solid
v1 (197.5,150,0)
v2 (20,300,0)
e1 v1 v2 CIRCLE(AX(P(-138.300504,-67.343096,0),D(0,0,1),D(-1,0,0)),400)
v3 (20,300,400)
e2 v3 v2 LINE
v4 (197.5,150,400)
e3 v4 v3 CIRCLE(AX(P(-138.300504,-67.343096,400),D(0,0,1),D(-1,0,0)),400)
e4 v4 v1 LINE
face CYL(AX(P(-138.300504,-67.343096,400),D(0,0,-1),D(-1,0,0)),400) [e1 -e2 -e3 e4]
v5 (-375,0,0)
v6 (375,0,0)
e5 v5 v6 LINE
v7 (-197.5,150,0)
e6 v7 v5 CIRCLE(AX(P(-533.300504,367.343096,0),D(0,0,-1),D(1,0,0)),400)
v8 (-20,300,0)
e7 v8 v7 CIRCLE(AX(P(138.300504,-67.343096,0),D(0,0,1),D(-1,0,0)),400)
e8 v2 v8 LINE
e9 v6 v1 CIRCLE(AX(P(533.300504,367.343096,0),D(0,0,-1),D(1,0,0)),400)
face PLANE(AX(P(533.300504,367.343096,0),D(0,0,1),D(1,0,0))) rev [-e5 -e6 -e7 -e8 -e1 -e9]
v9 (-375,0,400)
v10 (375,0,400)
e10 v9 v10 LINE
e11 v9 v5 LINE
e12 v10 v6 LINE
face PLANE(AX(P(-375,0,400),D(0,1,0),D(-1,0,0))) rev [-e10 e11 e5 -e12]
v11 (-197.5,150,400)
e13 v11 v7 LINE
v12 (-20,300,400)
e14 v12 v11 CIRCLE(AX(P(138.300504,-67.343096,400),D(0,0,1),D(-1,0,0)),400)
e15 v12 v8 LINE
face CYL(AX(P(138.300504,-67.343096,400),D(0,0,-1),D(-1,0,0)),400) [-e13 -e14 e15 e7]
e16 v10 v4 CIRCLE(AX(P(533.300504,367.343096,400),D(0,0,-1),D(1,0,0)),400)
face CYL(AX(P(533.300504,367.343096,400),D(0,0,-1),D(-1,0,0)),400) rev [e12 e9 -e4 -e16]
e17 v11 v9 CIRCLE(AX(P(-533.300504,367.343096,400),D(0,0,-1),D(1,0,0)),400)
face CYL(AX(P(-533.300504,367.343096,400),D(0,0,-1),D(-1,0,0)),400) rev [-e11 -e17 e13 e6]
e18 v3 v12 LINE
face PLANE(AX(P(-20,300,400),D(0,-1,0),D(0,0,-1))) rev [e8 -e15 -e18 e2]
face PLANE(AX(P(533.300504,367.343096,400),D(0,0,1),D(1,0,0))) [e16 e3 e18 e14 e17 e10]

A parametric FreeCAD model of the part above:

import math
import FreeCAD as App
import Part
import Sketcher

V = App.Vector
Q = App.Units.Quantity

doc = App.newDocument("Part")
body = doc.addObject("PartDesign::Body", "Body")

# Sketch on XY plane
sketch1 = body.newObject("Sketcher::SketchObject", "Sketch")
sketch1.AttachmentSupport = (doc.getObject("XY_Plane"), [""])
sketch1.MapMode = "FlatFace"
sketch1.addGeometry(Part.LineSegment(V(-375, 0, 0), V(375, 0, 0)), False)
sketch1.addGeometry(Part.ArcOfCircle(Part.Circle(V(533, 367, 0), V(0, 0, 1), 400), math.radians(-147), math.radians(-113)), False)
sketch1.addGeometry(Part.ArcOfCircle(Part.Circle(V(-138, -67, 0), V(0, 0, 1), 400), math.radians(33), math.radians(67)), False)
sketch1.addGeometry(Part.LineSegment(V(20, 300, 0), V(-20, 300, 0)), False)
sketch1.addGeometry(Part.ArcOfCircle(Part.Circle(V(138, -67, 0), V(0, 0, 1), 400), math.radians(113), math.radians(147)), False)
sketch1.addGeometry(Part.ArcOfCircle(Part.Circle(V(-533, 367, 0), V(0, 0, 1), 400), math.radians(-67), math.radians(-33)), False)
sketch1.addConstraint(Sketcher.Constraint("Coincident", 0, 2, 1, 2))
sketch1.addConstraint(Sketcher.Constraint("Tangent", 1, 1, 2, 1))
sketch1.addConstraint(Sketcher.Constraint("Coincident", 2, 2, 3, 1))
sketch1.addConstraint(Sketcher.Constraint("Coincident", 3, 2, 4, 1))
sketch1.addConstraint(Sketcher.Constraint("Tangent", 4, 2, 5, 2))
sketch1.addConstraint(Sketcher.Constraint("Coincident", 5, 1, 0, 1))
sketch1.addConstraint(Sketcher.Constraint("Horizontal", 0))
sketch1.addConstraint(Sketcher.Constraint("Horizontal", 3))
sketch1.addConstraint(Sketcher.Constraint("Equal", 1, 2))
sketch1.addConstraint(Sketcher.Constraint("Equal", 2, 4))
sketch1.addConstraint(Sketcher.Constraint("Equal", 4, 5))
sketch1.addConstraint(Sketcher.Constraint("Symmetric", 0, 2, 5, 1, -1, 1))
sketch1.addConstraint(Sketcher.Constraint("Symmetric", 2, 3, 4, 3, -2))
sketch1.addConstraint(Sketcher.Constraint("Radius", 1, Q("400 mm")))
sketch1.addConstraint(Sketcher.Constraint("DistanceX", 0, 1, 0, 2, Q("750 mm")))
sketch1.addConstraint(Sketcher.Constraint("DistanceX", 3, 2, 3, 1, Q("40 mm")))
sketch1.addConstraint(Sketcher.Constraint("DistanceY", -1, 1, 2, 2, Q("300 mm")))
sketch1.addConstraint(Sketcher.Constraint("DistanceX", 4, 3, 1, 3, Q("395 mm")))
pad1 = body.newObject("PartDesign::Pad", "Pad")
pad1.Profile = sketch1
pad1.Length = 400

doc.recompute()
